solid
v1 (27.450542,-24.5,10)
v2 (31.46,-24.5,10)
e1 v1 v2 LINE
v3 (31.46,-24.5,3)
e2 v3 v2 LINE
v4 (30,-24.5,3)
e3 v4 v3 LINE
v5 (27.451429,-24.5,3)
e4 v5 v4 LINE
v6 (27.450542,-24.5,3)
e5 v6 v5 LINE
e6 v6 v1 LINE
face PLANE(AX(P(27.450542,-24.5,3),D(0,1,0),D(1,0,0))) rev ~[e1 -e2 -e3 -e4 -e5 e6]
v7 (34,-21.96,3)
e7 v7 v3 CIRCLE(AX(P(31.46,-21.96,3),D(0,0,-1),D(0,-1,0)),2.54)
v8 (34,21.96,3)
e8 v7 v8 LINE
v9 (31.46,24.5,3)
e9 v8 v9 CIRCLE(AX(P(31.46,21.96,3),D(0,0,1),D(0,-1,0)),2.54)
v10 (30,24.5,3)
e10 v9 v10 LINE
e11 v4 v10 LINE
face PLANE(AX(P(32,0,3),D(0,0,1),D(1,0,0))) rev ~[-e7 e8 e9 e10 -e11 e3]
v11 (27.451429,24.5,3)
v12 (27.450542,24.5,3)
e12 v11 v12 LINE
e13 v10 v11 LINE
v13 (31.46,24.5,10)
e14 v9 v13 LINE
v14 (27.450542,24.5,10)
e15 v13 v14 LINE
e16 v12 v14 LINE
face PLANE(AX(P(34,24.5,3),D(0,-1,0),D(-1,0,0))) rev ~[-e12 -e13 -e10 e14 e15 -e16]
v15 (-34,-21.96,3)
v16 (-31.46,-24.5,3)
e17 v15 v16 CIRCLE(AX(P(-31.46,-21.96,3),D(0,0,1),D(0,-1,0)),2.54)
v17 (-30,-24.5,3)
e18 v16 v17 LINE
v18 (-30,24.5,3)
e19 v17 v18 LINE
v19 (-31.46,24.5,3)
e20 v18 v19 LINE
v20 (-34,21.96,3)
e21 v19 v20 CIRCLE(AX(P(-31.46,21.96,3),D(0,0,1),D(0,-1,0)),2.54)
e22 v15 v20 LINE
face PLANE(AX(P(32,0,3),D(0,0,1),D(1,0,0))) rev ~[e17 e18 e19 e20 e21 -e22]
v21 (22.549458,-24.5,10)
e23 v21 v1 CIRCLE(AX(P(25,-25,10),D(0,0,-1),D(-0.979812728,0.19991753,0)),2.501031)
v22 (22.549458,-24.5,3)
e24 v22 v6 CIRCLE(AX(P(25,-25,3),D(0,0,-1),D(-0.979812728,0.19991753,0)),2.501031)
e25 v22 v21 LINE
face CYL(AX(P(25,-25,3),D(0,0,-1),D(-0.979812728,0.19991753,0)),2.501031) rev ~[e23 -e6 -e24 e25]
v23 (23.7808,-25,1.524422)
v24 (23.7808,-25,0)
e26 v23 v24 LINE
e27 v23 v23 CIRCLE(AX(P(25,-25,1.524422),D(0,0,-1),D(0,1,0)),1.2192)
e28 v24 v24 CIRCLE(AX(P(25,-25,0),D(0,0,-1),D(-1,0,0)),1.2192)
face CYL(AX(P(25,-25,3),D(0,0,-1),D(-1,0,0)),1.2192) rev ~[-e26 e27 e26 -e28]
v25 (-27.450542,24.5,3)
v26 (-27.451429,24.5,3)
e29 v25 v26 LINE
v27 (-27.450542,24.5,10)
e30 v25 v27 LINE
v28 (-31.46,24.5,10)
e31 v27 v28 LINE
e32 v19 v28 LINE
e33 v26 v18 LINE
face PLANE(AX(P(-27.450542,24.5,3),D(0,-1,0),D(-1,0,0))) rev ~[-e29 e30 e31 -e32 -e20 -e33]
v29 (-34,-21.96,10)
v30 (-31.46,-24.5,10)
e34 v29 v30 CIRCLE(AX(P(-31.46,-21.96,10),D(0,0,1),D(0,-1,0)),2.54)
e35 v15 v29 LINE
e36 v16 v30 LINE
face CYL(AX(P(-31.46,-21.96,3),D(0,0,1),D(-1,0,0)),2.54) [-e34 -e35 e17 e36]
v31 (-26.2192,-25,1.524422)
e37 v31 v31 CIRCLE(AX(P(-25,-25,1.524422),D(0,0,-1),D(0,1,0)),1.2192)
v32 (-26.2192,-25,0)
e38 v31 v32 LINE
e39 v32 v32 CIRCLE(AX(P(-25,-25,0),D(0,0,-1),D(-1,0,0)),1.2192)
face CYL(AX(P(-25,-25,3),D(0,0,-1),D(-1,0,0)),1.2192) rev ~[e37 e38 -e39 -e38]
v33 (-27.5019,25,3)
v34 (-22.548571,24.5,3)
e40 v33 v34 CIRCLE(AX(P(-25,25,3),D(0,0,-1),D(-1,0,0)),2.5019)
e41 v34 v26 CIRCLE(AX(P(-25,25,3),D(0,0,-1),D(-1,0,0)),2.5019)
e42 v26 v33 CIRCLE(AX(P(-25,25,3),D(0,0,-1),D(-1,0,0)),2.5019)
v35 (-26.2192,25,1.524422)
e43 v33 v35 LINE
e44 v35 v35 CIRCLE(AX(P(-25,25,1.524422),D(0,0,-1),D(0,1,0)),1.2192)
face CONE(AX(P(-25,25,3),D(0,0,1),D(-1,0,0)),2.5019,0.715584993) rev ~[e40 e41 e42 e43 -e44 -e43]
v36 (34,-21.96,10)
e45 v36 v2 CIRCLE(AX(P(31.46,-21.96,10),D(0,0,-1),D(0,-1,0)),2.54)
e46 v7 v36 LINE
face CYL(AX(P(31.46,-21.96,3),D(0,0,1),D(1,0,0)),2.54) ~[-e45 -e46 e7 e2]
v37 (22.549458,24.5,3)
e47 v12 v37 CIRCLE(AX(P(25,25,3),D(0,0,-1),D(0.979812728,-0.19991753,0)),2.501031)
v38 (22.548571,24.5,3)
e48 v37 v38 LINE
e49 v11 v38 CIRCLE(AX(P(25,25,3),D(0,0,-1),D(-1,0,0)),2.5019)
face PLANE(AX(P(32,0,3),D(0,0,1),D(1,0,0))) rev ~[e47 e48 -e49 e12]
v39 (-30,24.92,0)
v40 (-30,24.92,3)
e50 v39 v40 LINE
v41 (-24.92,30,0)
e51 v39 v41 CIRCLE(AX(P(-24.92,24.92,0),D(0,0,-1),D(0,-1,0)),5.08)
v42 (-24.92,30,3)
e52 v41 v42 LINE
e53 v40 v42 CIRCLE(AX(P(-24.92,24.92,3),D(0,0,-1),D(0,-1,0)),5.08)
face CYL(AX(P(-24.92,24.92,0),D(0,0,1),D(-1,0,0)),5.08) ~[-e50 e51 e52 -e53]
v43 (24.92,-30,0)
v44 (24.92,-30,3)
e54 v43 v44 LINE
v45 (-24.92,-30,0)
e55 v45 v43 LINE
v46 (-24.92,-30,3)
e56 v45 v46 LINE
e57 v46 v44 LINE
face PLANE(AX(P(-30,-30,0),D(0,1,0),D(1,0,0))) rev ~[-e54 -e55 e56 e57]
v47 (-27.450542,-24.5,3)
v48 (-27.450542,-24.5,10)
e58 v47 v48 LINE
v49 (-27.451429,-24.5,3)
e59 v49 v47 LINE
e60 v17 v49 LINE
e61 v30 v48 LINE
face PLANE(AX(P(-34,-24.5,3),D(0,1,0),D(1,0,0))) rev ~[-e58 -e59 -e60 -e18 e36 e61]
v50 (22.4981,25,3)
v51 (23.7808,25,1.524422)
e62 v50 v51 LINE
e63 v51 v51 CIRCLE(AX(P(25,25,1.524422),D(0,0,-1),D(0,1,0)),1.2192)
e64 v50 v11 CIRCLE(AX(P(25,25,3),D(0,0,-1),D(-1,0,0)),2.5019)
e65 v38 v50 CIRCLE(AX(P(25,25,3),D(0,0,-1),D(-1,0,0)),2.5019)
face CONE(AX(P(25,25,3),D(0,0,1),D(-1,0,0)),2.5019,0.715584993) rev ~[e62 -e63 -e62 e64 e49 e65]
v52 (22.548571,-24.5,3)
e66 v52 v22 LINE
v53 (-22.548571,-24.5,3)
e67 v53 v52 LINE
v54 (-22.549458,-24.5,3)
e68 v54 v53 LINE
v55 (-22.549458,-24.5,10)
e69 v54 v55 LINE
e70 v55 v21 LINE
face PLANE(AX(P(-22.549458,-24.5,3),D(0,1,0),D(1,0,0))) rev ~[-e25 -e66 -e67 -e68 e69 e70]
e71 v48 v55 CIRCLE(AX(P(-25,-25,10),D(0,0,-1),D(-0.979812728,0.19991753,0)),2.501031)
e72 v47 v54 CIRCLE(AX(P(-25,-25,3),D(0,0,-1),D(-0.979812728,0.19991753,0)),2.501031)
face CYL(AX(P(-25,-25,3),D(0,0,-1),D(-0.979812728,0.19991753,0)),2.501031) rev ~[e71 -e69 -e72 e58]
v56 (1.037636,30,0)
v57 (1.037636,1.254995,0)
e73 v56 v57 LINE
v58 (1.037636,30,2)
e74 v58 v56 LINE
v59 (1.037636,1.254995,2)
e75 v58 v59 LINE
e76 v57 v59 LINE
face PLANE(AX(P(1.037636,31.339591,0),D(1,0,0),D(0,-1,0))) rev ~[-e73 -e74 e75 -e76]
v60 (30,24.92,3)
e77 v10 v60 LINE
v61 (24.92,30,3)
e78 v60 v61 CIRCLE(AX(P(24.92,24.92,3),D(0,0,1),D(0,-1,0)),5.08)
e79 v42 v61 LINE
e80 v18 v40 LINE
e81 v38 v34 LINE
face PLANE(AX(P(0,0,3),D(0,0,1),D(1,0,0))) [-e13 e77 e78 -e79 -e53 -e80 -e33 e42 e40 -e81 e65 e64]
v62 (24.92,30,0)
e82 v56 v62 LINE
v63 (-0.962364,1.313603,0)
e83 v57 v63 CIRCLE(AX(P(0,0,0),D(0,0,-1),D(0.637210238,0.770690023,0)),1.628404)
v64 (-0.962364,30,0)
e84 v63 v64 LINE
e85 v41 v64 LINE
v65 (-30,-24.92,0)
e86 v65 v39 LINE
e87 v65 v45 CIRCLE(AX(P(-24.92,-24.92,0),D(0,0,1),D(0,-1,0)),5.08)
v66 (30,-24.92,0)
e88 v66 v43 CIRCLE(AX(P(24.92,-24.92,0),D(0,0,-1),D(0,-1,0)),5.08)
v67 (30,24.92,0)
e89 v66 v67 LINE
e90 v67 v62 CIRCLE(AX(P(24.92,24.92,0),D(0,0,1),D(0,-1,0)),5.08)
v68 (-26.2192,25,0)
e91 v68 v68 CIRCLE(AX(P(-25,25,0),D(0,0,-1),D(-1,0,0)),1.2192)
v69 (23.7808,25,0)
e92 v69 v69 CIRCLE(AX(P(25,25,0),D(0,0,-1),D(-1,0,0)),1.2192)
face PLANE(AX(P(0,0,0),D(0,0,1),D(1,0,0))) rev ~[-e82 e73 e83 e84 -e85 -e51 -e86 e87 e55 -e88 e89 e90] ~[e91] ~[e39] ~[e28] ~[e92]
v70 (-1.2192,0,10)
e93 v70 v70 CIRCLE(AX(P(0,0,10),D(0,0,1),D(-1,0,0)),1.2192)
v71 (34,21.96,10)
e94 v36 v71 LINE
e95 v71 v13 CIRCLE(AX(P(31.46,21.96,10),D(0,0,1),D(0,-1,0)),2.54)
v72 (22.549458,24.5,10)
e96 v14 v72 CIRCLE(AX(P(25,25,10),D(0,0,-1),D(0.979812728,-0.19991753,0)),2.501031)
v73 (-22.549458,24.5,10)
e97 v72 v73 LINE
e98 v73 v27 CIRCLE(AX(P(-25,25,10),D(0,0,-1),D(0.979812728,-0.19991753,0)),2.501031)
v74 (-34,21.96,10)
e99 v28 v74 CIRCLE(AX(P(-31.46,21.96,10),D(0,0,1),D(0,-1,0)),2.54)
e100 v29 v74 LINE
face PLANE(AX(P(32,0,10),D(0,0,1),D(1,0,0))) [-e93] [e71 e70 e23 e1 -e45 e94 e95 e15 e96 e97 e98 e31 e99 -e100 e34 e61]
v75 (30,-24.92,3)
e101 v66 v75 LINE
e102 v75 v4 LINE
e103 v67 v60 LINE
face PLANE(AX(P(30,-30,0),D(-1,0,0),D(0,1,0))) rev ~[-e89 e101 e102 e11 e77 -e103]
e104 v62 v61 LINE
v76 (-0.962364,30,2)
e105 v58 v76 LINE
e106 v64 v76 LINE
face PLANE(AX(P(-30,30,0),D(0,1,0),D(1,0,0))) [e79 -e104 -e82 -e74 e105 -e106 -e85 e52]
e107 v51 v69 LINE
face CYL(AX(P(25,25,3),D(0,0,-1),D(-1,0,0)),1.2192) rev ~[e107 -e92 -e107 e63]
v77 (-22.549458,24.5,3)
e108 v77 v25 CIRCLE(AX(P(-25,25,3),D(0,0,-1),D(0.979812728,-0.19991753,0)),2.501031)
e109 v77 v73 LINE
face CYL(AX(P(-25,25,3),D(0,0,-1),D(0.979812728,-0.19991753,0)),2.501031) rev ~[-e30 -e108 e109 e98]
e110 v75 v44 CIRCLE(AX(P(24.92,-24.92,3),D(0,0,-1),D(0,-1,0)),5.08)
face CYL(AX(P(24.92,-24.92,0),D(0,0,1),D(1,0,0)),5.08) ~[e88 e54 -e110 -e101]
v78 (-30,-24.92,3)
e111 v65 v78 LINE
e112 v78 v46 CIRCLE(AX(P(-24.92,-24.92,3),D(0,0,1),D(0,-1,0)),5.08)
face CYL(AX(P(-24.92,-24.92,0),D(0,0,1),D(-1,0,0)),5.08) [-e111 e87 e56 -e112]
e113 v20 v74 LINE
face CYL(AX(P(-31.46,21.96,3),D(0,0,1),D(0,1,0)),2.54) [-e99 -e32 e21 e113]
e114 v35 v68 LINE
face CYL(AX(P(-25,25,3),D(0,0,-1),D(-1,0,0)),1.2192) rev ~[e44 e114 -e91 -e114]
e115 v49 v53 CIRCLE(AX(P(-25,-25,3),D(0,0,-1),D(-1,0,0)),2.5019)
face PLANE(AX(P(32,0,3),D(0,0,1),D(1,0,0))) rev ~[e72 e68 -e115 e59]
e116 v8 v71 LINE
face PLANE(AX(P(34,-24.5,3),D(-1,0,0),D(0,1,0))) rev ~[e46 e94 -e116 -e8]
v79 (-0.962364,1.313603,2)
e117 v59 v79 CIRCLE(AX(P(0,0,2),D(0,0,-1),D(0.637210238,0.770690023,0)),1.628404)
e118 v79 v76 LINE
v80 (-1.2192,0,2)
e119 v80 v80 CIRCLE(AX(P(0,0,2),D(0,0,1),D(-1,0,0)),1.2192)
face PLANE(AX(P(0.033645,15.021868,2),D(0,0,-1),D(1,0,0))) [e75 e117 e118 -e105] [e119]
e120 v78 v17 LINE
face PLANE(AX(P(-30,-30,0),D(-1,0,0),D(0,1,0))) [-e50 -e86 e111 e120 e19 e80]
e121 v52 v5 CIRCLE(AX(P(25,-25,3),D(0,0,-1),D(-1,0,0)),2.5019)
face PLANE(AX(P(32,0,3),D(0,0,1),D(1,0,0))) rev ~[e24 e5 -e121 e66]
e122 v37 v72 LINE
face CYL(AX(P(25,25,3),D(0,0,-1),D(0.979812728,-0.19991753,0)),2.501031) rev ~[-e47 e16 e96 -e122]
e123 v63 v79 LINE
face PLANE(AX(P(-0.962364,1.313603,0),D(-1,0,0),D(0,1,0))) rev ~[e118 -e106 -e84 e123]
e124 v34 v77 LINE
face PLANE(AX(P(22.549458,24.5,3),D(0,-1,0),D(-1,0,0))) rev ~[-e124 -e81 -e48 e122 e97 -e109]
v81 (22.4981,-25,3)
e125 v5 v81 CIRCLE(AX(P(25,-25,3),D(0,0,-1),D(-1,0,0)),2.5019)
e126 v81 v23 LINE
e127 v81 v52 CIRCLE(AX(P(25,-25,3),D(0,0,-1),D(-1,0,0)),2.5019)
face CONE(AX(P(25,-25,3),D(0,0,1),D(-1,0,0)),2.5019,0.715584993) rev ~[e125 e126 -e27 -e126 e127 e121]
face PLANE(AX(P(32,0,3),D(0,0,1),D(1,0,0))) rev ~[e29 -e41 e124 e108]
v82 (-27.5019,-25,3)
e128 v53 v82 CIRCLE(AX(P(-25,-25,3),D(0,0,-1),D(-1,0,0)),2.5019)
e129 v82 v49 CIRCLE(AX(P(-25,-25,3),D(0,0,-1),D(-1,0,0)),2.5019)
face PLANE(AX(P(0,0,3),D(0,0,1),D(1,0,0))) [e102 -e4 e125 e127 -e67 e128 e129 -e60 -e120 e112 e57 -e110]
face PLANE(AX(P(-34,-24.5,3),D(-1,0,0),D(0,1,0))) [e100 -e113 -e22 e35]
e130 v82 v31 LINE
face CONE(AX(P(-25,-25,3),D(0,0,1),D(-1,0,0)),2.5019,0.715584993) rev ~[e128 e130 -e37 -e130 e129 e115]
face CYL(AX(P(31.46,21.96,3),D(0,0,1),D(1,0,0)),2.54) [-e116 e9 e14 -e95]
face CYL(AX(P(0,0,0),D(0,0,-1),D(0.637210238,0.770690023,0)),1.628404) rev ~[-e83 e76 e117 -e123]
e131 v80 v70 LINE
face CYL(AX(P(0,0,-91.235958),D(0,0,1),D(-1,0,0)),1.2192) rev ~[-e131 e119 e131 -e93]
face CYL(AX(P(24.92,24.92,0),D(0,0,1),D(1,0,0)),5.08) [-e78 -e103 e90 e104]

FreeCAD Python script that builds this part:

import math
import FreeCAD as App
import Part
import Sketcher
Q = App.Units.Quantity


def edges_at(feature, points):
    """Names of the edges that pass closest to the given points."""
    edges = feature.Shape.Edges
    near = lambda p: min(range(len(edges)), key=lambda i: edges[i].distToShape(Part.Vertex(*p))[0])
    return sorted({f"Edge{near(p) + 1}" for p in points})


def add_polygon(sketch, points):
    """Adds a closed chain of lines whose ends are joined by coincident constraints."""
    first, n = sketch.GeometryCount, len(points)
    for a, b in zip(points, points[1:] + points[:1]):
        sketch.addGeometry(Part.LineSegment(App.Vector(*a, 0), App.Vector(*b, 0)), False)
    for i in range(n):
        sketch.addConstraint(Sketcher.Constraint("Coincident", first + i, 2, first + (i + 1) % n, 1))

doc = App.newDocument("Part")
body = doc.addObject("PartDesign::Body", "Body")

sketch1 = body.newObject("Sketcher::SketchObject", "Sketch")
sketch1.AttachmentSupport = (doc.getObject("XY_Plane"), [""])
sketch1.MapMode = "FlatFace"
add_polygon(sketch1, [(-30, 30), (-30, -30), (30, -30), (30, 30)])
sketch1.addConstraint(Sketcher.Constraint("Vertical", 0))
sketch1.addConstraint(Sketcher.Constraint("Horizontal", 1))
sketch1.addConstraint(Sketcher.Constraint("Vertical", 2))
sketch1.addConstraint(Sketcher.Constraint("Horizontal", 3))
sketch1.addConstraint(Sketcher.Constraint("Symmetric", 0, 2, 2, 2, -1, 1))
sketch1.addConstraint(Sketcher.Constraint("Equal", 3, 0))
sketch1.addConstraint(Sketcher.Constraint("DistanceX", 1, 1, 1, 2, Q("60 mm")))
pad1 = body.newObject("PartDesign::Pad", "Pad")
pad1.Profile = sketch1
pad1.Length = 3

sketch2 = body.newObject("Sketcher::SketchObject", "Sketch001")
sketch2.AttachmentSupport = (doc.getObject("XY_Plane"), [""])
sketch2.MapMode = "FlatFace"
sketch2.AttachmentOffset = App.Placement(App.Vector(0, 0, 3), App.Rotation())
sketch2.addGeometry(Part.Circle(App.Vector(-25, 25, 0), App.Vector(0, 0, 1), 1.2), False)
sketch2.addGeometry(Part.Circle(App.Vector(-25, -25, 0), App.Vector(0, 0, 1), 1.2), False)
sketch2.addGeometry(Part.Circle(App.Vector(25, -25, 0), App.Vector(0, 0, 1), 1.2), False)
sketch2.addGeometry(Part.Circle(App.Vector(25, 25, 0), App.Vector(0, 0, 1), 1.2), False)
sketch2.addConstraint(Sketcher.Constraint("Equal", 0, 1))
sketch2.addConstraint(Sketcher.Constraint("Equal", 1, 2))
sketch2.addConstraint(Sketcher.Constraint("Equal", 2, 3))
sketch2.addConstraint(Sketcher.Constraint("Symmetric", 0, 3, 2, 3, -1, 1))
sketch2.addConstraint(Sketcher.Constraint("Symmetric", 1, 3, 3, 3, -1, 1))
sketch2.addConstraint(Sketcher.Constraint("Symmetric", 1, 3, 2, 3, -2))
sketch2.addConstraint(Sketcher.Constraint("DistanceX", 0, 3, -1, 1, Q("25 mm")))
sketch2.addConstraint(Sketcher.Constraint("DistanceY", -1, 1, 0, 3, Q("25 mm")))
sketch2.addConstraint(Sketcher.Constraint("Diameter", 0, Q("2.4384 mm")))
doc.recompute()
hole = body.newObject("PartDesign::Hole", "Hole")
hole.Profile = sketch2
hole.ThreadType = "None"
hole.Diameter = 2.4384
hole.DepthType = "Dimension"
hole.Depth = 12.7
hole.DrillPoint = "Angled"
hole.DrillPointAngle = 118
hole.HoleCutType = "Countersink"
hole.HoleCutDiameter = 5.0038
hole.HoleCutCountersinkAngle = 82
doc.recompute()

fillet = body.newObject("PartDesign::Fillet", "Fillet")
fillet.Base = (hole, edges_at(hole, [
    (30, -30, 1.5),
    (-30, -30, 1.5),
    (30, 30, 1.5),
    (-30, 30, 1.5),
]))
fillet.Radius = 5.08

sketch3 = body.newObject("Sketcher::SketchObject", "Sketch002")
sketch3.AttachmentSupport = (doc.getObject("XY_Plane"), [""])
sketch3.MapMode = "FlatFace"
sketch3.AttachmentOffset = App.Placement(App.Vector(0, 0, 3), App.Rotation())
sketch3.addGeometry(Part.LineSegment(App.Vector(34, -24.5, 0), App.Vector(34, 24.5, 0)), False)
sketch3.addGeometry(Part.LineSegment(App.Vector(34, 24.5, 0), App.Vector(27.5, 24.5, 0)), False)
sketch3.addGeometry(Part.ArcOfCircle(Part.Circle(App.Vector(25, 25, 0), App.Vector(0, 0, 1), 2.5), math.radians(-168), math.radians(-12)), False)
sketch3.addGeometry(Part.LineSegment(App.Vector(22.5, 24.5, 0), App.Vector(-22.5, 24.5, 0)), False)
sketch3.addGeometry(Part.ArcOfCircle(Part.Circle(App.Vector(-25, 25, 0), App.Vector(0, 0, 1), 2.5), math.radians(-168), math.radians(-12)), False)
sketch3.addGeometry(Part.LineSegment(App.Vector(-27.5, 24.5, 0), App.Vector(-34, 24.5, 0)), False)
sketch3.addGeometry(Part.LineSegment(App.Vector(-34, 24.5, 0), App.Vector(-34, -24.5, 0)), False)
sketch3.addGeometry(Part.LineSegment(App.Vector(-34, -24.5, 0), App.Vector(-27.5, -24.5, 0)), False)
sketch3.addGeometry(Part.ArcOfCircle(Part.Circle(App.Vector(-25, -25, 0), App.Vector(0, 0, 1), 2.5), math.radians(12), math.radians(168)), False)
sketch3.addGeometry(Part.LineSegment(App.Vector(-22.5, -24.5, 0), App.Vector(22.5, -24.5, 0)), False)
sketch3.addGeometry(Part.ArcOfCircle(Part.Circle(App.Vector(25, -25, 0), App.Vector(0, 0, 1), 2.5), math.radians(12), math.radians(168)), False)
sketch3.addGeometry(Part.LineSegment(App.Vector(27.5, -24.5, 0), App.Vector(34, -24.5, 0)), False)
sketch3.addConstraint(Sketcher.Constraint("Coincident", 0, 2, 1, 1))
sketch3.addConstraint(Sketcher.Constraint("Coincident", 1, 2, 2, 2))
sketch3.addConstraint(Sketcher.Constraint("Coincident", 2, 1, 3, 1))
sketch3.addConstraint(Sketcher.Constraint("Coincident", 3, 2, 4, 2))
sketch3.addConstraint(Sketcher.Constraint("Coincident", 4, 1, 5, 1))
sketch3.addConstraint(Sketcher.Constraint("Coincident", 5, 2, 6, 1))
sketch3.addConstraint(Sketcher.Constraint("Coincident", 6, 2, 7, 1))
sketch3.addConstraint(Sketcher.Constraint("Coincident", 7, 2, 8, 2))
sketch3.addConstraint(Sketcher.Constraint("Coincident", 8, 1, 9, 1))
sketch3.addConstraint(Sketcher.Constraint("Coincident", 9, 2, 10, 2))
sketch3.addConstraint(Sketcher.Constraint("Coincident", 10, 1, 11, 1))
sketch3.addConstraint(Sketcher.Constraint("Coincident", 11, 2, 0, 1))
sketch3.addConstraint(Sketcher.Constraint("Vertical", 0))
sketch3.addConstraint(Sketcher.Constraint("Horizontal", 1))
sketch3.addConstraint(Sketcher.Constraint("Horizontal", 3))
sketch3.addConstraint(Sketcher.Constraint("Horizontal", 5))
sketch3.addConstraint(Sketcher.Constraint("Vertical", 6))
sketch3.addConstraint(Sketcher.Constraint("Horizontal", 7))
sketch3.addConstraint(Sketcher.Constraint("Horizontal", 9))
sketch3.addConstraint(Sketcher.Constraint("Horizontal", 11))
sketch3.addConstraint(Sketcher.Constraint("Equal", 2, 4))
sketch3.addConstraint(Sketcher.Constraint("Equal", 4, 8))
sketch3.addConstraint(Sketcher.Constraint("Equal", 8, 10))
sketch3.addConstraint(Sketcher.Constraint("Symmetric", 2, 3, 8, 3, -1, 1))
sketch3.addConstraint(Sketcher.Constraint("Symmetric", 4, 3, 10, 3, -1, 1))
sketch3.addConstraint(Sketcher.Constraint("Symmetric", 0, 2, 6, 2, -1, 1))
sketch3.addConstraint(Sketcher.Constraint("Symmetric", 2, 3, 4, 3, -2))
sketch3.addConstraint(Sketcher.Constraint("Horizontal", 1, 2, 2, 1))
sketch3.addConstraint(Sketcher.Constraint("Horizontal", 3, 2, 4, 1))
sketch3.addConstraint(Sketcher.Constraint("Horizontal", 7, 2, 8, 1))
sketch3.addConstraint(Sketcher.Constraint("Horizontal", 9, 2, 10, 1))
sketch3.addConstraint(Sketcher.Constraint("DistanceY", 0, 1, 0, 2, Q("49 mm")))
sketch3.addConstraint(Sketcher.Constraint("DistanceX", -1, 1, 2, 3, Q("25 mm")))
sketch3.addConstraint(Sketcher.Constraint("DistanceY", -1, 1, 2, 3, Q("25 mm")))
sketch3.addConstraint(Sketcher.Constraint("DistanceX", -1, 1, 0, 2, Q("34 mm")))
sketch3.addConstraint(Sketcher.Constraint("Radius", 2, Q("2.501031 mm")))
pad2 = body.newObject("PartDesign::Pad", "Pad001")
pad2.Profile = sketch3
pad2.Length = 7
doc.recompute()

fillet2 = body.newObject("PartDesign::Fillet", "Fillet001")
fillet2.Base = (pad2, edges_at(pad2, [
    (-34, -24.5, 6.5),
    (34, -24.5, 6.5),
    (34, 24.5, 6.5),
    (-34, 24.5, 6.5),
]))
fillet2.Radius = 2.54

sketch4 = body.newObject("Sketcher::SketchObject", "Sketch003")
sketch4.AttachmentSupport = (doc.getObject("XY_Plane"), [""])
sketch4.MapMode = "FlatFace"
sketch4.addGeometry(Part.Circle(App.Vector(0, 0, 0), App.Vector(0, 0, 1), 1.2), False)
sketch4.addConstraint(Sketcher.Constraint("Coincident", 0, 3, -1, 1))
sketch4.addConstraint(Sketcher.Constraint("Diameter", 0, Q("2.4384 mm")))
doc.recompute()
hole2 = body.newObject("PartDesign::Hole", "Hole001")
hole2.Profile = sketch4
hole2.ThreadType = "None"
hole2.Diameter = 2.4384
hole2.DepthType = "ThroughAll"
hole2.Reversed = True

sketch5 = body.newObject("Sketcher::SketchObject", "Sketch004")
sketch5.AttachmentSupport = (doc.getObject("XY_Plane"), [""])
sketch5.MapMode = "FlatFace"
sketch5.addGeometry(Part.LineSegment(App.Vector(-1, 1.3, 0), App.Vector(-1, 31.3, 0)), False)
sketch5.addGeometry(Part.LineSegment(App.Vector(-1, 31.3, 0), App.Vector(1, 31.3, 0)), False)
sketch5.addGeometry(Part.LineSegment(App.Vector(1, 31.3, 0), App.Vector(1, 1.3, 0)), False)
sketch5.addGeometry(Part.ArcOfCircle(Part.Circle(App.Vector(0, 0, 0), App.Vector(0, 0, 1), 1.6), math.radians(126), math.radians(410)), False)
sketch5.addConstraint(Sketcher.Constraint("Coincident", 0, 2, 1, 1))
sketch5.addConstraint(Sketcher.Constraint("Coincident", 1, 2, 2, 1))
sketch5.addConstraint(Sketcher.Constraint("Coincident", 2, 2, 3, 2))
sketch5.addConstraint(Sketcher.Constraint("Coincident", 3, 1, 0, 1))
sketch5.addConstraint(Sketcher.Constraint("Vertical", 0))
sketch5.addConstraint(Sketcher.Constraint("Horizontal", 1))
sketch5.addConstraint(Sketcher.Constraint("Vertical", 2))
sketch5.addConstraint(Sketcher.Constraint("Coincident", 3, 3, -1, 1))
sketch5.addConstraint(Sketcher.Constraint("DistanceX", 1, 1, 1, 2, Q("2 mm")))
sketch5.addConstraint(Sketcher.Constraint("Radius", 3, Q("1.628404 mm")))
sketch5.addConstraint(Sketcher.Constraint("DistanceY", 0, 1, 0, 2, Q("30.025987 mm")))
sketch5.addConstraint(Sketcher.Constraint("DistanceY", 2, 2, 2, 1, Q("30.084596 mm")))
pocket1 = body.newObject("PartDesign::Pocket", "Pocket")
pocket1.Profile = sketch5
pocket1.Length = 2
pocket1.Reversed = True

doc.recompute()
